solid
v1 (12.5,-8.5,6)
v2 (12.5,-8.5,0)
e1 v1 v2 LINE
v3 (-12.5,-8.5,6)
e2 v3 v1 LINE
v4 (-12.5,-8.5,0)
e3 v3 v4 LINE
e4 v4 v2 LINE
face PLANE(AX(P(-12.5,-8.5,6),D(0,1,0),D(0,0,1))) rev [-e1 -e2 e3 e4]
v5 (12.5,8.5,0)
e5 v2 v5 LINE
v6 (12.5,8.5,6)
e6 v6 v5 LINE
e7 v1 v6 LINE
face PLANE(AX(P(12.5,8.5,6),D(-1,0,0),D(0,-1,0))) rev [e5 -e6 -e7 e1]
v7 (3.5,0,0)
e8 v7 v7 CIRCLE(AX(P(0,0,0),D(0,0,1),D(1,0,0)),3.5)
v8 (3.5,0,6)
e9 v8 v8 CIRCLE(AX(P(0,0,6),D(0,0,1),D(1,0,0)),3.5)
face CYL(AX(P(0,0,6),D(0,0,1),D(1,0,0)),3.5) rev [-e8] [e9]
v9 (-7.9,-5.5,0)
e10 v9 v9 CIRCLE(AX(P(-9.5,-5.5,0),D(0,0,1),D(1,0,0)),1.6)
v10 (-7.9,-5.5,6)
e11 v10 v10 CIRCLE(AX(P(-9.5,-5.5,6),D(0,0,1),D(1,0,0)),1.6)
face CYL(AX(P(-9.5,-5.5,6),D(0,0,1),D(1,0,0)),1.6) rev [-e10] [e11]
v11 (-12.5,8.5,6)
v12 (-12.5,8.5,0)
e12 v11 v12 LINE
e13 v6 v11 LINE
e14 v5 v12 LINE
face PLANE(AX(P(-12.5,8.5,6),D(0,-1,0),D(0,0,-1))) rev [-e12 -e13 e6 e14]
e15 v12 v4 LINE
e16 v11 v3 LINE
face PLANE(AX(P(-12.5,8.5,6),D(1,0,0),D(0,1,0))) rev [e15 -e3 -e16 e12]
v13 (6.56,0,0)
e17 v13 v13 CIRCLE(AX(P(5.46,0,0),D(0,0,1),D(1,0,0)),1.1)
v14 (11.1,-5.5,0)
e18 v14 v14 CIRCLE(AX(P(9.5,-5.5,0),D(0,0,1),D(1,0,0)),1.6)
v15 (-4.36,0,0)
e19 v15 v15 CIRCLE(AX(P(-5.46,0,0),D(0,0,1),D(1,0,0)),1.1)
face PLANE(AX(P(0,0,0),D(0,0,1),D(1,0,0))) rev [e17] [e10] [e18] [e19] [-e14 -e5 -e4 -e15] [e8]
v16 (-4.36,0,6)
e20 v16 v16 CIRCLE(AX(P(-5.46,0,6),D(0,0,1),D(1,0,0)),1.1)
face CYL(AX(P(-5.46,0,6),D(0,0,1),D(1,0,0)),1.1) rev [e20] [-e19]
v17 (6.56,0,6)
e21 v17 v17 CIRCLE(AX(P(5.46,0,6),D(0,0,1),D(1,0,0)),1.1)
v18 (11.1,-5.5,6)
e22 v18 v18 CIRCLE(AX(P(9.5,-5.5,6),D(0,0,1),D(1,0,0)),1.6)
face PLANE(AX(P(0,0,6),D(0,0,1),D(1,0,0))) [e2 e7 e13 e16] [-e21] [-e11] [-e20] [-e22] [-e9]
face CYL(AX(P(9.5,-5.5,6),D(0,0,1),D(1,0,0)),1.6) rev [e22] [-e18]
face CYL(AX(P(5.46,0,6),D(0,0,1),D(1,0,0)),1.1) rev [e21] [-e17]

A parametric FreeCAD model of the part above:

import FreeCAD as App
import Part
import Sketcher

V = App.Vector
Q = App.Units.Quantity


def add_polygon(sketch, points):
    """Adds a closed chain of lines whose ends are joined by coincident constraints."""
    first, n = sketch.GeometryCount, len(points)
    for a, b in zip(points, points[1:] + points[:1]):
        sketch.addGeometry(Part.LineSegment(App.Vector(*a, 0), App.Vector(*b, 0)), False)
    for i in range(n):
        sketch.addConstraint(Sketcher.Constraint("Coincident", first + i, 2, first + (i + 1) % n, 1))

doc = App.newDocument("Part")
body = doc.addObject("PartDesign::Body", "Body")

# Sketch on XY plane
sketch1 = body.newObject("Sketcher::SketchObject", "Sketch")
sketch1.AttachmentSupport = (doc.getObject("XY_Plane"), [""])
sketch1.MapMode = "FlatFace"
add_polygon(sketch1, [(-12, 8), (-12, -8), (12, -8), (12, 8)])  # lines 0-3
sketch1.addConstraint([
    Sketcher.Constraint("Vertical", 0),
    Sketcher.Constraint("Horizontal", 1),
    Sketcher.Constraint("Vertical", 2),
    Sketcher.Constraint("Horizontal", 3),
    Sketcher.Constraint("Symmetric", 0, 2, 2, 2, -1, 1),
    Sketcher.Constraint("DistanceX", 1, 1, 1, 2, Q("25 mm")),
    Sketcher.Constraint("DistanceY", 0, 2, 0, 1, Q("17 mm")),
])
pad1 = body.newObject("PartDesign::Pad", "Pad")
pad1.Profile = sketch1
pad1.Length = 6

# Sketch on XY plane
sketch2 = body.newObject("Sketcher::SketchObject", "Sketch001")
sketch2.AttachmentSupport = (doc.getObject("XY_Plane"), [""])
sketch2.MapMode = "FlatFace"
sketch2.AttachmentOffset = App.Placement(V(0, 0, 6), App.Rotation())
sketch2.addGeometry([
    Part.Circle(V(-9.5, -5.5, 0), V(0, 0, 1), 1.6),
    Part.Circle(V(9.5, -5.5, 0), V(0, 0, 1), 1.6),
], False)
sketch2.addConstraint([
    Sketcher.Constraint("Equal", 0, 1),
    Sketcher.Constraint("Symmetric", 0, 3, 1, 3, -2),
    Sketcher.Constraint("Diameter", 0, Q("3.2 mm")),
    Sketcher.Constraint("DistanceX", 0, 3, 1, 3, Q("19 mm")),
    Sketcher.Constraint("DistanceY", 0, 3, -1, 1, Q("5.5 mm")),
])
doc.recompute()
hole = body.newObject("PartDesign::Hole", "Hole")
hole.Profile = sketch2
hole.ThreadType = "None"
hole.Diameter = 3.2
hole.DepthType = "ThroughAll"

# Sketch on XY plane
sketch3 = body.newObject("Sketcher::SketchObject", "Sketch002")
sketch3.AttachmentSupport = (doc.getObject("XY_Plane"), [""])
sketch3.MapMode = "FlatFace"
sketch3.AttachmentOffset = App.Placement(V(0, 0, 6), App.Rotation())
sketch3.addGeometry(Part.Circle(V(0, 0, 0), V(0, 0, 1), 3.5), False)
sketch3.addConstraint([
    Sketcher.Constraint("Coincident", 0, 3, -1, 1),
    Sketcher.Constraint("Diameter", 0, Q("7 mm")),
])
doc.recompute()
hole2 = body.newObject("PartDesign::Hole", "Hole001")
hole2.Profile = sketch3
hole2.ThreadType = "None"
hole2.Diameter = 7
hole2.DepthType = "ThroughAll"

# Sketch on XY plane
sketch4 = body.newObject("Sketcher::SketchObject", "Sketch003")
sketch4.AttachmentSupport = (doc.getObject("XY_Plane"), [""])
sketch4.MapMode = "FlatFace"
sketch4.AttachmentOffset = App.Placement(V(0, 0, 6), App.Rotation())
sketch4.addGeometry([
    Part.Circle(V(-5.5, 0, 0), V(0, 0, 1), 1.1),
    Part.Circle(V(5.5, 0, 0), V(0, 0, 1), 1.1),
], False)
sketch4.addConstraint([
    Sketcher.Constraint("Equal", 0, 1),
    Sketcher.Constraint("Symmetric", 0, 3, 1, 3, -1, 1),
    Sketcher.Constraint("PointOnObject", 0, 3, -1),
    Sketcher.Constraint("Diameter", 0, Q("2.2 mm")),
    Sketcher.Constraint("DistanceX", 0, 3, -1, 1, Q("5.46 mm")),
])
doc.recompute()
hole3 = body.newObject("PartDesign::Hole", "Hole002")
hole3.Profile = sketch4
hole3.ThreadType = "None"
hole3.Diameter = 2.2
hole3.DepthType = "ThroughAll"

doc.recompute()
